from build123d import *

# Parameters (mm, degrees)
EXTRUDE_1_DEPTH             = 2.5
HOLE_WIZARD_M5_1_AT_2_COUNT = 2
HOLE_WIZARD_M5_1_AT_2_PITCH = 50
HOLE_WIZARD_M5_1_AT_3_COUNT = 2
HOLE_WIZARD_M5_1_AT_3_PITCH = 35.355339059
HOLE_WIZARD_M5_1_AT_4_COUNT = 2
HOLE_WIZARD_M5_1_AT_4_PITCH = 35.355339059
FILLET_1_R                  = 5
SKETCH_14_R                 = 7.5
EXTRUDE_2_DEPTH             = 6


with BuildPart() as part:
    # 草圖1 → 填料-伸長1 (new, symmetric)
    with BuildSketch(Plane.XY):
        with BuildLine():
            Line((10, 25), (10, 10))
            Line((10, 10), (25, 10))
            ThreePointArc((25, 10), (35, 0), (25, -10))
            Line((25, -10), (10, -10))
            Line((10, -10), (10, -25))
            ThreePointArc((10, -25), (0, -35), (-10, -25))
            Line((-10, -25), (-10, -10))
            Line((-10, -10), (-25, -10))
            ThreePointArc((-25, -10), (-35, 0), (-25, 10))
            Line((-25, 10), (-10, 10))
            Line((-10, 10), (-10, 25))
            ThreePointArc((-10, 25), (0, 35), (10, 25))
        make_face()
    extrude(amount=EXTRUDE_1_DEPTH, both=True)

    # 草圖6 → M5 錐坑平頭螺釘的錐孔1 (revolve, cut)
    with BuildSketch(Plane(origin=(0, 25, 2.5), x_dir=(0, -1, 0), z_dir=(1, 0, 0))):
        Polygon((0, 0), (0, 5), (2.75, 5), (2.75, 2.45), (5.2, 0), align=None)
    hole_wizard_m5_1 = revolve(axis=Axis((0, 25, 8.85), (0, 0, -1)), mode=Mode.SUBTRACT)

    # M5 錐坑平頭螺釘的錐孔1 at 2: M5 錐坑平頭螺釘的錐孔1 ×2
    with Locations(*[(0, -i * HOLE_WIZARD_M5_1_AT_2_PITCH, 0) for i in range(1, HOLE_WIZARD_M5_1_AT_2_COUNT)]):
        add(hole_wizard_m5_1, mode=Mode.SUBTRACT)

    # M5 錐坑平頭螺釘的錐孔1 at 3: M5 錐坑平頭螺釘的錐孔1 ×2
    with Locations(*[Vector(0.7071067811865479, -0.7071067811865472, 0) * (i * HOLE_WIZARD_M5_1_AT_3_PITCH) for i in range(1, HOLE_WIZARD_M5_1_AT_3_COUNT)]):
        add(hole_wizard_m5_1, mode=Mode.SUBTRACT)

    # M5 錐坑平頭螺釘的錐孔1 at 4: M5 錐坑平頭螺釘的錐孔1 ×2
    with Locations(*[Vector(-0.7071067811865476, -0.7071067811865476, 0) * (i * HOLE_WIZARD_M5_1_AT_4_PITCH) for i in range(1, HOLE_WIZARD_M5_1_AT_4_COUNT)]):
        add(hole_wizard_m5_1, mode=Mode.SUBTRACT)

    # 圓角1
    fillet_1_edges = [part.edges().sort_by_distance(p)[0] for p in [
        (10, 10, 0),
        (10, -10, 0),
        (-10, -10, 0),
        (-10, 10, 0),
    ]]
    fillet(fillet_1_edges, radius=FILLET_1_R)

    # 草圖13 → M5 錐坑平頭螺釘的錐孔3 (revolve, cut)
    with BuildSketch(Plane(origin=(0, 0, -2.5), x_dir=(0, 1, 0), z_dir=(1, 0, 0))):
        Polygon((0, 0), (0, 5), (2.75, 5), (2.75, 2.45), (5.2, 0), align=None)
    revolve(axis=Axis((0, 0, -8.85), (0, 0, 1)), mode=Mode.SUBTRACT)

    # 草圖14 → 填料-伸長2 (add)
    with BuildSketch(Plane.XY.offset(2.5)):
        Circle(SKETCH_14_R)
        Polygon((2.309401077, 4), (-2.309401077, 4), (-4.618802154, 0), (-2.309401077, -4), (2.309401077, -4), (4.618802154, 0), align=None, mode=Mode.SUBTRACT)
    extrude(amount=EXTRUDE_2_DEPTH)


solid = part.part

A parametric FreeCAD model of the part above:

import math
import FreeCAD as App
import Part
import Sketcher

V = App.Vector
Q = App.Units.Quantity


def edges_at(feature, points):
    """Names of the edges that pass closest to the given points."""
    edges = feature.Shape.Edges
    near = lambda p: min(range(len(edges)), key=lambda i: edges[i].distToShape(Part.Vertex(*p))[0])
    return sorted({f"Edge{near(p) + 1}" for p in points})

doc = App.newDocument("Part")
body = doc.addObject("PartDesign::Body", "Body")

sketch1 = body.newObject("Sketcher::SketchObject", "Sketch")
sketch1.AttachmentSupport = (doc.getObject("XY_Plane"), [""])
sketch1.MapMode = "FlatFace"
sketch1.addGeometry(Part.LineSegment(V(10, 10, 0), V(10, 25, 0)), False)
sketch1.addGeometry(Part.ArcOfCircle(Part.Circle(V(0, 25, 0), V(0, 0, 1), 10), math.radians(0), math.radians(180)), False)
sketch1.addGeometry(Part.LineSegment(V(-10, 25, 0), V(-10, 10, 0)), False)
sketch1.addGeometry(Part.LineSegment(V(-10, 10, 0), V(-25, 10, 0)), False)
sketch1.addGeometry(Part.ArcOfCircle(Part.Circle(V(-25, 0, 0), V(0, 0, 1), 10), math.radians(90), math.radians(270)), False)
sketch1.addGeometry(Part.LineSegment(V(-25, -10, 0), V(-10, -10, 0)), False)
sketch1.addGeometry(Part.LineSegment(V(-10, -10, 0), V(-10, -25, 0)), False)
sketch1.addGeometry(Part.ArcOfCircle(Part.Circle(V(0, -25, 0), V(0, 0, 1), 10), math.radians(180), math.radians(360)), False)
sketch1.addGeometry(Part.LineSegment(V(10, -25, 0), V(10, -10, 0)), False)
sketch1.addGeometry(Part.LineSegment(V(10, -10, 0), V(25, -10, 0)), False)
sketch1.addGeometry(Part.ArcOfCircle(Part.Circle(V(25, 0, 0), V(0, 0, 1), 10), math.radians(-90), math.radians(90)), False)
sketch1.addGeometry(Part.LineSegment(V(25, 10, 0), V(10, 10, 0)), False)
sketch1.addConstraint(Sketcher.Constraint("Tangent", 0, 2, 1, 1))
sketch1.addConstraint(Sketcher.Constraint("Tangent", 1, 2, 2, 1))
sketch1.addConstraint(Sketcher.Constraint("Coincident", 2, 2, 3, 1))
sketch1.addConstraint(Sketcher.Constraint("Tangent", 3, 2, 4, 1))
sketch1.addConstraint(Sketcher.Constraint("Tangent", 4, 2, 5, 1))
sketch1.addConstraint(Sketcher.Constraint("Coincident", 5, 2, 6, 1))
sketch1.addConstraint(Sketcher.Constraint("Tangent", 6, 2, 7, 1))
sketch1.addConstraint(Sketcher.Constraint("Tangent", 7, 2, 8, 1))
sketch1.addConstraint(Sketcher.Constraint("Coincident", 8, 2, 9, 1))
sketch1.addConstraint(Sketcher.Constraint("Tangent", 9, 2, 10, 1))
sketch1.addConstraint(Sketcher.Constraint("Tangent", 10, 2, 11, 1))
sketch1.addConstraint(Sketcher.Constraint("Coincident", 11, 2, 0, 1))
sketch1.addConstraint(Sketcher.Constraint("Vertical", 0))
sketch1.addConstraint(Sketcher.Constraint("Vertical", 2))
sketch1.addConstraint(Sketcher.Constraint("Horizontal", 3))
sketch1.addConstraint(Sketcher.Constraint("Horizontal", 5))
sketch1.addConstraint(Sketcher.Constraint("Vertical", 6))
sketch1.addConstraint(Sketcher.Constraint("Vertical", 8))
sketch1.addConstraint(Sketcher.Constraint("Horizontal", 9))
sketch1.addConstraint(Sketcher.Constraint("Horizontal", 11))
sketch1.addConstraint(Sketcher.Constraint("Equal", 1, 4))
sketch1.addConstraint(Sketcher.Constraint("Equal", 4, 7))
sketch1.addConstraint(Sketcher.Constraint("Equal", 7, 10))
sketch1.addConstraint(Sketcher.Constraint("Symmetric", 1, 3, 7, 3, -1, 1))
sketch1.addConstraint(Sketcher.Constraint("Symmetric", 4, 3, 10, 3, -1, 1))
sketch1.addConstraint(Sketcher.Constraint("Symmetric", 5, 2, 8, 2, -2))
sketch1.addConstraint(Sketcher.Constraint("Equal", 11, 0))
sketch1.addConstraint(Sketcher.Constraint("Radius", 1, 10.0))
sketch1.addConstraint(Sketcher.Constraint("DistanceX", 3, 2, 3, 1, 15.0))
pad1 = body.newObject("PartDesign::Pad", "Pad")
pad1.Profile = sketch1
pad1.Length = 5
pad1.Midplane = True

sketch2 = body.newObject("Sketcher::SketchObject", "Sketch001")
sketch2.AttachmentSupport = (doc.getObject("YZ_Plane"), [""])
sketch2.MapMode = "FlatFace"
sketch2.addGeometry(Part.LineSegment(V(25, -2.5, 0), V(25, 2.5, 0)), False)
sketch2.addGeometry(Part.LineSegment(V(25, 2.5, 0), V(19.8, 2.5, 0)), False)
sketch2.addGeometry(Part.LineSegment(V(19.8, 2.5, 0), V(22.2, 0.1, 0)), False)
sketch2.addGeometry(Part.LineSegment(V(22.2, 0.1, 0), V(22.2, -2.5, 0)), False)
sketch2.addGeometry(Part.LineSegment(V(22.2, -2.5, 0), V(25, -2.5, 0)), False)
sketch2.addGeometry(Part.LineSegment(V(25, 2.5, 0), V(25, -2.5, 0)), True)
sketch2.addConstraint(Sketcher.Constraint("Coincident", 0, 2, 1, 1))
sketch2.addConstraint(Sketcher.Constraint("Coincident", 1, 2, 2, 1))
sketch2.addConstraint(Sketcher.Constraint("Coincident", 2, 2, 3, 1))
sketch2.addConstraint(Sketcher.Constraint("Coincident", 3, 2, 4, 1))
sketch2.addConstraint(Sketcher.Constraint("Coincident", 4, 2, 0, 1))
sketch2.addConstraint(Sketcher.Constraint("Vertical", 0))
sketch2.addConstraint(Sketcher.Constraint("Horizontal", 1))
sketch2.addConstraint(Sketcher.Constraint("Vertical", 3))
sketch2.addConstraint(Sketcher.Constraint("Horizontal", 4))
sketch2.addConstraint(Sketcher.Constraint("Vertical", 5))
sketch2.addConstraint(Sketcher.Constraint("Coincident", 5, 1, 0, 2))
sketch2.addConstraint(Sketcher.Constraint("Horizontal", 3, 2, 5, 2))
sketch2.addConstraint(Sketcher.Constraint("DistanceY", 0, 1, 0, 2, 5.0))
sketch2.addConstraint(Sketcher.Constraint("Angle", 2, Q("-45 deg")))
sketch2.addConstraint(Sketcher.Constraint("DistanceX", 1, 2, 1, 1, 5.2))
sketch2.addConstraint(Sketcher.Constraint("DistanceX", -1, 1, 0, 2, 25.0))
sketch2.addConstraint(Sketcher.Constraint("DistanceX", 4, 1, 4, 2, 2.75))
sketch2.addConstraint(Sketcher.Constraint("DistanceY", -1, 1, 0, 2, 2.5))
groove = body.newObject("PartDesign::Groove", "Groove")
groove.Profile = sketch2
groove.ReferenceAxis = (sketch2, ["Axis0"])
groove.Angle = 360
doc.recompute()

linearpattern = body.newObject("PartDesign::LinearPattern", "LinearPattern")
linearpattern.Originals = [groove]
linearpattern.Direction = (doc.getObject("Y_Axis"), [""])
linearpattern.Mode = "offset"
linearpattern.Offset = 50
linearpattern.Occurrences = 2
linearpattern.Reversed = True
body.Tip = linearpattern
doc.recompute()

datumline = body.newObject("PartDesign::Line", "DatumLine")
datumline.Placement = App.Placement(V(0, 0, 0), App.Rotation(V(0, 0, 1), V(0.707106781, -0.707106781, 0)))
linearpattern2 = body.newObject("PartDesign::LinearPattern", "LinearPattern001")
linearpattern2.Originals = [groove]
linearpattern2.Direction = (datumline, [""])
linearpattern2.Mode = "offset"
linearpattern2.Offset = 35.355339
linearpattern2.Occurrences = 2
body.Tip = linearpattern2
doc.recompute()

datumline2 = body.newObject("PartDesign::Line", "DatumLine001")
datumline2.Placement = App.Placement(V(0, 0, 0), App.Rotation(V(0, 0, 1), V(-0.707106781, -0.707106781, 0)))
linearpattern3 = body.newObject("PartDesign::LinearPattern", "LinearPattern002")
linearpattern3.Originals = [groove]
linearpattern3.Direction = (datumline2, [""])
linearpattern3.Mode = "offset"
linearpattern3.Offset = 35.355339
linearpattern3.Occurrences = 2
body.Tip = linearpattern3
doc.recompute()

fillet = body.newObject("PartDesign::Fillet", "Fillet")
fillet.Base = (linearpattern3, edges_at(linearpattern3, [
    (10, 10, 0),
    (10, -10, 0),
    (-10, -10, 0),
    (-10, 10, 0),
]))
fillet.Radius = 5

sketch3 = body.newObject("Sketcher::SketchObject", "Sketch002")
sketch3.AttachmentSupport = (doc.getObject("YZ_Plane"), [""])
sketch3.MapMode = "FlatFace"
sketch3.addGeometry(Part.LineSegment(V(0, 2.5, 0), V(0, -2.5, 0)), False)
sketch3.addGeometry(Part.LineSegment(V(0, -2.5, 0), V(5.2, -2.5, 0)), False)
sketch3.addGeometry(Part.LineSegment(V(5.2, -2.5, 0), V(2.8, -0.1, 0)), False)
sketch3.addGeometry(Part.LineSegment(V(2.8, -0.1, 0), V(2.8, 2.5, 0)), False)
sketch3.addGeometry(Part.LineSegment(V(2.8, 2.5, 0), V(0, 2.5, 0)), False)
sketch3.addConstraint(Sketcher.Constraint("Coincident", 0, 2, 1, 1))
sketch3.addConstraint(Sketcher.Constraint("Coincident", 1, 2, 2, 1))
sketch3.addConstraint(Sketcher.Constraint("Coincident", 2, 2, 3, 1))
sketch3.addConstraint(Sketcher.Constraint("Coincident", 3, 2, 4, 1))
sketch3.addConstraint(Sketcher.Constraint("Coincident", 4, 2, 0, 1))
sketch3.addConstraint(Sketcher.Constraint("Vertical", 0))
sketch3.addConstraint(Sketcher.Constraint("Horizontal", 1))
sketch3.addConstraint(Sketcher.Constraint("Vertical", 3))
sketch3.addConstraint(Sketcher.Constraint("Horizontal", 4))
sketch3.addConstraint(Sketcher.Constraint("Symmetric", 0, 2, 4, 2, -1, 1))
sketch3.addConstraint(Sketcher.Constraint("DistanceY", 0, 2, 0, 1, 5.0))
sketch3.addConstraint(Sketcher.Constraint("Angle", 2, Q("135 deg")))
sketch3.addConstraint(Sketcher.Constraint("DistanceX", 1, 1, 1, 2, 5.2))
sketch3.addConstraint(Sketcher.Constraint("DistanceX", 4, 2, 4, 1, 2.75))
groove2 = body.newObject("PartDesign::Groove", "Groove001")
groove2.Profile = sketch3
groove2.ReferenceAxis = (sketch3, ["V_Axis"])
groove2.Angle = 360

sketch4 = body.newObject("Sketcher::SketchObject", "Sketch003")
sketch4.AttachmentSupport = (doc.getObject("XY_Plane"), [""])
sketch4.MapMode = "FlatFace"
sketch4.AttachmentOffset = App.Placement(V(0, 0, 2.5), App.Rotation())
sketch4.addGeometry(Part.Circle(V(0, 0, 0), V(0, 0, 1), 7.5), False)
sketch4.addGeometry(Part.LineSegment(V(-2.3, 4, 0), V(2.3, 4, 0)), False)
sketch4.addGeometry(Part.LineSegment(V(2.3, 4, 0), V(4.6, 0, 0)), False)
sketch4.addGeometry(Part.LineSegment(V(4.6, 0, 0), V(2.3, -4, 0)), False)
sketch4.addGeometry(Part.LineSegment(V(2.3, -4, 0), V(-2.3, -4, 0)), False)
sketch4.addGeometry(Part.LineSegment(V(-2.3, -4, 0), V(-4.6, 0, 0)), False)
sketch4.addGeometry(Part.LineSegment(V(-4.6, 0, 0), V(-2.3, 4, 0)), False)
sketch4.addConstraint(Sketcher.Constraint("Coincident", 1, 2, 2, 1))
sketch4.addConstraint(Sketcher.Constraint("Coincident", 2, 2, 3, 1))
sketch4.addConstraint(Sketcher.Constraint("Coincident", 3, 2, 4, 1))
sketch4.addConstraint(Sketcher.Constraint("Coincident", 4, 2, 5, 1))
sketch4.addConstraint(Sketcher.Constraint("Coincident", 5, 2, 6, 1))
sketch4.addConstraint(Sketcher.Constraint("Coincident", 6, 2, 1, 1))
sketch4.addConstraint(Sketcher.Constraint("Horizontal", 1))
sketch4.addConstraint(Sketcher.Constraint("Horizontal", 4))
sketch4.addConstraint(Sketcher.Constraint("Coincident", 0, 3, -1, 1))
sketch4.addConstraint(Sketcher.Constraint("Symmetric", 1, 2, 4, 2, -1, 1))
sketch4.addConstraint(Sketcher.Constraint("Symmetric", 2, 2, 5, 2, -1, 1))
sketch4.addConstraint(Sketcher.Constraint("PointOnObject", 2, 2, -1))
sketch4.addConstraint(Sketcher.Constraint("Parallel", 3, 6))
sketch4.addConstraint(Sketcher.Constraint("Vertical", 1, 2, 3, 2))
sketch4.addConstraint(Sketcher.Constraint("Diameter", 0, 15.0))
sketch4.addConstraint(Sketcher.Constraint("Angle", 2, Q("-60 deg")))
sketch4.addConstraint(Sketcher.Constraint("DistanceY", -1, 1, 1, 2, 4.0))
sketch4.addConstraint(Sketcher.Constraint("DistanceX", -1, 1, 1, 2, 2.309401))
pad2 = body.newObject("PartDesign::Pad", "Pad001")
pad2.Profile = sketch4
pad2.Length = 6

doc.recompute()
